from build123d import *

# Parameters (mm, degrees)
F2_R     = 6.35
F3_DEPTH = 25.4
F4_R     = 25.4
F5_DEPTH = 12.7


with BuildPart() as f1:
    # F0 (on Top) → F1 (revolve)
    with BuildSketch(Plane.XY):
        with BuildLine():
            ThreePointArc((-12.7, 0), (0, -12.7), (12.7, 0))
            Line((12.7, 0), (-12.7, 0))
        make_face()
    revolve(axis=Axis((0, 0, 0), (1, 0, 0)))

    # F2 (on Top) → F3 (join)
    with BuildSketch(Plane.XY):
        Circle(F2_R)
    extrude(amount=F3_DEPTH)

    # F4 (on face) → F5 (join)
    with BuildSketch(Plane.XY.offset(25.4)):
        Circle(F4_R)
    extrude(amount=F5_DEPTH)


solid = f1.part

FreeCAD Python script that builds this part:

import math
import FreeCAD as App
import Part
import Sketcher
from FreeCAD import Vector
Q = App.Units.Quantity

doc = App.newDocument("Part")
params = doc.addObject("Spreadsheet::Sheet", "Params")
for row, (alias, value) in enumerate([
    ("sketch1_radius", "0.5 in"),
    ("revolution_angle", "360 deg"),
    ("sketch2_diameter", "0.5 in"),
    ("pad1_length", "1 in"),
    ("sketch3_diameter", "2 in"),
    ("pad2_length", "0.5 in"),
], start=1):
    params.set(f"A{row}", alias)
    params.set(f"B{row}", "=" + value)
    params.setAlias(f"B{row}", alias)

body = doc.addObject("PartDesign::Body", "Body")

# Sketch on XY plane
sketch1 = body.newObject("Sketcher::SketchObject", "Sketch")
sketch1.AttachmentSupport = (doc.getObject("XY_Plane"), [""])
sketch1.MapMode = "FlatFace"
sketch1.addGeometry([
    Part.ArcOfCircle(Part.Circle(Vector(0, 0, 0), Vector(0, 0, 1), 12.7), math.radians(180), math.radians(360)),
    Part.LineSegment(Vector(12.7, 0, 0), Vector(-12.7, 0, 0)),
], False)
sketch1.addConstraint([
    Sketcher.Constraint("Coincident", 0, 1, 1, 2),
    Sketcher.Constraint("Coincident", 1, 1, 0, 2),
    Sketcher.Constraint("Horizontal", 1),
    Sketcher.Constraint("Coincident", 0, 3, -1, 1),
    Sketcher.Constraint("PointOnObject", 0, 1, -1),
    Sketcher.Constraint("Radius", 0, Q("0.5 in")),
])
sketch1.setExpression("Constraints[5]", "Params.sketch1_radius")
revolution = body.newObject("PartDesign::Revolution", "Revolution")
revolution.Profile = sketch1
revolution.ReferenceAxis = (sketch1, ["H_Axis"])
revolution.setExpression("Angle", "Params.revolution_angle")

# Sketch on XY plane
sketch2 = body.newObject("Sketcher::SketchObject", "Sketch001")
sketch2.AttachmentSupport = (doc.getObject("XY_Plane"), [""])
sketch2.MapMode = "FlatFace"
sketch2.addGeometry(Part.Circle(Vector(0, 0, 0), Vector(0, 0, 1), 6.35), False)
sketch2.addConstraint([
    Sketcher.Constraint("Coincident", 0, 3, -1, 1),
    Sketcher.Constraint("Diameter", 0, Q("0.5 in")),
])
sketch2.setExpression("Constraints[1]", "Params.sketch2_diameter")
pad1 = body.newObject("PartDesign::Pad", "Pad")
pad1.Profile = sketch2
pad1.setExpression("Length", "Params.pad1_length")

# Sketch on XY plane
sketch3 = body.newObject("Sketcher::SketchObject", "Sketch002")
sketch3.AttachmentSupport = (doc.getObject("XY_Plane"), [""])
sketch3.MapMode = "FlatFace"
sketch3.AttachmentOffset = App.Placement(Vector(0, 0, 1 * 25.4), App.Rotation())
sketch3.addGeometry(Part.Circle(Vector(0, 0, 0), Vector(0, 0, 1), 25.4), False)
sketch3.addConstraint([
    Sketcher.Constraint("Coincident", 0, 3, -1, 1),
    Sketcher.Constraint("Diameter", 0, Q("2 in")),
])
sketch3.setExpression("Constraints[1]", "Params.sketch3_diameter")
pad2 = body.newObject("PartDesign::Pad", "Pad001")
pad2.Profile = sketch3
pad2.setExpression("Length", "Params.pad2_length")

doc.recompute()
